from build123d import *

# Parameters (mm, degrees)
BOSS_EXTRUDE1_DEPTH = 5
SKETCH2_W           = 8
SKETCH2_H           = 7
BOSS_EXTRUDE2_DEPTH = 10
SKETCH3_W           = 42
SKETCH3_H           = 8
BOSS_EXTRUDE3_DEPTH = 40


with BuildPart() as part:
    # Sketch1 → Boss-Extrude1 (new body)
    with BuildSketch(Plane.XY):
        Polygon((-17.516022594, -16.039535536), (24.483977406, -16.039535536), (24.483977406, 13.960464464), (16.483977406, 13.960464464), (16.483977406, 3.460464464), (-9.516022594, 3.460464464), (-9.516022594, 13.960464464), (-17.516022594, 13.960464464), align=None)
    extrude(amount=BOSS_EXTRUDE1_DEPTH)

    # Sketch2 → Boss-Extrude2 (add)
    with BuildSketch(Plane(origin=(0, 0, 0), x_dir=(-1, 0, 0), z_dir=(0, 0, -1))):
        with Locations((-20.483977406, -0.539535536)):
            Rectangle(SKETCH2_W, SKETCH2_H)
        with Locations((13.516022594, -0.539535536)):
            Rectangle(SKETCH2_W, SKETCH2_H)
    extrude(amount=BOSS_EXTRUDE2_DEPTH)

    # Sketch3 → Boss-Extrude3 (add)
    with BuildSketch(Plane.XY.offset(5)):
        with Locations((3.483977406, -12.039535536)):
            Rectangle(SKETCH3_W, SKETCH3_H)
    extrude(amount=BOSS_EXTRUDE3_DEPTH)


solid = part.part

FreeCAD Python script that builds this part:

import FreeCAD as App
import Part
import Sketcher
Q = App.Units.Quantity


def add_polygon(sketch, points):
    """Adds a closed chain of lines whose ends are joined by coincident constraints."""
    first, n = sketch.GeometryCount, len(points)
    for a, b in zip(points, points[1:] + points[:1]):
        sketch.addGeometry(Part.LineSegment(App.Vector(*a, 0), App.Vector(*b, 0)), False)
    for i in range(n):
        sketch.addConstraint(Sketcher.Constraint("Coincident", first + i, 2, first + (i + 1) % n, 1))

doc = App.newDocument("Part")
params = doc.addObject("Spreadsheet::Sheet", "Params")
for row, (alias, value) in enumerate([
    ("sketch1_width", "42 mm"),
    ("sketch1_width2", "8 mm"),
    ("sketch1_height", "30 mm"),
    ("sketch1_height2", "10.5 mm"),
    ("pad1_length", "5 mm"),
    ("sketch2_width", "8 mm"),
    ("sketch2_height", "7 mm"),
    ("pad2_length", "10 mm"),
    ("sketch3_width", "42 mm"),
    ("sketch3_height", "8 mm"),
    ("pad3_length", "40 mm"),
], start=1):
    params.set(f"A{row}", alias)
    params.set(f"B{row}", "=" + value)
    params.setAlias(f"B{row}", alias)

body = doc.addObject("PartDesign::Body", "Body")

sketch1 = body.newObject("Sketcher::SketchObject", "Sketch")
sketch1.AttachmentSupport = (doc.getObject("XY_Plane"), [""])
sketch1.MapMode = "FlatFace"
add_polygon(sketch1, [(-18, -16), (24, -16), (24, 14), (16, 14), (16, 3), (-10, 3), (-10, 14), (-18, 14)])
sketch1.addConstraint([
    Sketcher.Constraint("Horizontal", 0),
    Sketcher.Constraint("Vertical", 1),
    Sketcher.Constraint("Horizontal", 2),
    Sketcher.Constraint("Vertical", 3),
    Sketcher.Constraint("Horizontal", 4),
    Sketcher.Constraint("Vertical", 5),
    Sketcher.Constraint("Horizontal", 6),
    Sketcher.Constraint("Vertical", 7),
    Sketcher.Constraint("Horizontal", 2, 2, 5, 2),
    Sketcher.Constraint("Equal", 2, 6),
    Sketcher.Constraint("DistanceX", 0, 1, 0, 2, Q("42 mm")),
    Sketcher.Constraint("DistanceX", 2, 2, 2, 1, Q("8 mm")),
    Sketcher.Constraint("DistanceY", 1, 1, 1, 2, Q("30 mm")),
    Sketcher.Constraint("DistanceY", 3, 2, 3, 1, Q("10.5 mm")),
    Sketcher.Constraint("DistanceX", -1, 1, 0, 2, Q("24.483977 mm")),
    Sketcher.Constraint("DistanceY", 0, 2, -1, 1, Q("16.039536 mm")),
])
sketch1.setExpression("Constraints[18]", "Params.sketch1_width")
sketch1.setExpression("Constraints[19]", "Params.sketch1_width2")
sketch1.setExpression("Constraints[20]", "Params.sketch1_height")
sketch1.setExpression("Constraints[21]", "Params.sketch1_height2")
pad1 = body.newObject("PartDesign::Pad", "Pad")
pad1.Profile = sketch1
pad1.setExpression("Length", "Params.pad1_length")

sketch2 = body.newObject("Sketcher::SketchObject", "Sketch001")
sketch2.AttachmentSupport = (doc.getObject("XY_Plane"), [""])
sketch2.MapMode = "FlatFace"
add_polygon(sketch2, [(24, 3), (24, -4), (16, -4), (16, 3)])
add_polygon(sketch2, [(-10, 3), (-10, -4), (-18, -4), (-18, 3)])
sketch2.addConstraint([
    Sketcher.Constraint("Vertical", 0),
    Sketcher.Constraint("Horizontal", 1),
    Sketcher.Constraint("Vertical", 2),
    Sketcher.Constraint("Horizontal", 3),
    Sketcher.Constraint("Vertical", 4),
    Sketcher.Constraint("Horizontal", 5),
    Sketcher.Constraint("Vertical", 6),
    Sketcher.Constraint("Horizontal", 7),
    Sketcher.Constraint("Horizontal", 1, 2, 4, 2),
    Sketcher.Constraint("Horizontal", 3, 2, 6, 2),
    Sketcher.Constraint("Equal", 3, 5),
    Sketcher.Constraint("DistanceX", 1, 2, 1, 1, Q("8 mm")),
    Sketcher.Constraint("DistanceY", 0, 2, 0, 1, Q("7 mm")),
    Sketcher.Constraint("DistanceX", 4, 2, 1, 2, Q("26 mm")),
    Sketcher.Constraint("DistanceX", -1, 1, 0, 2, Q("24.483977 mm")),
    Sketcher.Constraint("DistanceY", 0, 2, -1, 1, Q("4.039536 mm")),
])
sketch2.setExpression("Constraints[19]", "Params.sketch2_width")
sketch2.setExpression("Constraints[20]", "Params.sketch2_height")
pad2 = body.newObject("PartDesign::Pad", "Pad001")
pad2.Profile = sketch2
pad2.setExpression("Length", "Params.pad2_length")
pad2.Reversed = True

sketch3 = body.newObject("Sketcher::SketchObject", "Sketch002")
sketch3.AttachmentSupport = (doc.getObject("XY_Plane"), [""])
sketch3.MapMode = "FlatFace"
sketch3.AttachmentOffset = App.Placement(App.Vector(0, 0, 5), App.Rotation())
add_polygon(sketch3, [(-18, -8), (-18, -16), (24, -16), (24, -8)])
sketch3.addConstraint([
    Sketcher.Constraint("Vertical", 0),
    Sketcher.Constraint("Horizontal", 1),
    Sketcher.Constraint("Vertical", 2),
    Sketcher.Constraint("Horizontal", 3),
    Sketcher.Constraint("DistanceX", 1, 1, 1, 2, Q("42 mm")),
    Sketcher.Constraint("DistanceY", 0, 2, 0, 1, Q("8 mm")),
    Sketcher.Constraint("DistanceX", 0, 2, -1, 1, Q("17.516023 mm")),
    Sketcher.Constraint("DistanceY", 0, 2, -1, 1, Q("16.039536 mm")),
])
sketch3.setExpression("Constraints[8]", "Params.sketch3_width")
sketch3.setExpression("Constraints[9]", "Params.sketch3_height")
pad3 = body.newObject("PartDesign::Pad", "Pad002")
pad3.Profile = sketch3
pad3.setExpression("Length", "Params.pad3_length")

doc.recompute()
